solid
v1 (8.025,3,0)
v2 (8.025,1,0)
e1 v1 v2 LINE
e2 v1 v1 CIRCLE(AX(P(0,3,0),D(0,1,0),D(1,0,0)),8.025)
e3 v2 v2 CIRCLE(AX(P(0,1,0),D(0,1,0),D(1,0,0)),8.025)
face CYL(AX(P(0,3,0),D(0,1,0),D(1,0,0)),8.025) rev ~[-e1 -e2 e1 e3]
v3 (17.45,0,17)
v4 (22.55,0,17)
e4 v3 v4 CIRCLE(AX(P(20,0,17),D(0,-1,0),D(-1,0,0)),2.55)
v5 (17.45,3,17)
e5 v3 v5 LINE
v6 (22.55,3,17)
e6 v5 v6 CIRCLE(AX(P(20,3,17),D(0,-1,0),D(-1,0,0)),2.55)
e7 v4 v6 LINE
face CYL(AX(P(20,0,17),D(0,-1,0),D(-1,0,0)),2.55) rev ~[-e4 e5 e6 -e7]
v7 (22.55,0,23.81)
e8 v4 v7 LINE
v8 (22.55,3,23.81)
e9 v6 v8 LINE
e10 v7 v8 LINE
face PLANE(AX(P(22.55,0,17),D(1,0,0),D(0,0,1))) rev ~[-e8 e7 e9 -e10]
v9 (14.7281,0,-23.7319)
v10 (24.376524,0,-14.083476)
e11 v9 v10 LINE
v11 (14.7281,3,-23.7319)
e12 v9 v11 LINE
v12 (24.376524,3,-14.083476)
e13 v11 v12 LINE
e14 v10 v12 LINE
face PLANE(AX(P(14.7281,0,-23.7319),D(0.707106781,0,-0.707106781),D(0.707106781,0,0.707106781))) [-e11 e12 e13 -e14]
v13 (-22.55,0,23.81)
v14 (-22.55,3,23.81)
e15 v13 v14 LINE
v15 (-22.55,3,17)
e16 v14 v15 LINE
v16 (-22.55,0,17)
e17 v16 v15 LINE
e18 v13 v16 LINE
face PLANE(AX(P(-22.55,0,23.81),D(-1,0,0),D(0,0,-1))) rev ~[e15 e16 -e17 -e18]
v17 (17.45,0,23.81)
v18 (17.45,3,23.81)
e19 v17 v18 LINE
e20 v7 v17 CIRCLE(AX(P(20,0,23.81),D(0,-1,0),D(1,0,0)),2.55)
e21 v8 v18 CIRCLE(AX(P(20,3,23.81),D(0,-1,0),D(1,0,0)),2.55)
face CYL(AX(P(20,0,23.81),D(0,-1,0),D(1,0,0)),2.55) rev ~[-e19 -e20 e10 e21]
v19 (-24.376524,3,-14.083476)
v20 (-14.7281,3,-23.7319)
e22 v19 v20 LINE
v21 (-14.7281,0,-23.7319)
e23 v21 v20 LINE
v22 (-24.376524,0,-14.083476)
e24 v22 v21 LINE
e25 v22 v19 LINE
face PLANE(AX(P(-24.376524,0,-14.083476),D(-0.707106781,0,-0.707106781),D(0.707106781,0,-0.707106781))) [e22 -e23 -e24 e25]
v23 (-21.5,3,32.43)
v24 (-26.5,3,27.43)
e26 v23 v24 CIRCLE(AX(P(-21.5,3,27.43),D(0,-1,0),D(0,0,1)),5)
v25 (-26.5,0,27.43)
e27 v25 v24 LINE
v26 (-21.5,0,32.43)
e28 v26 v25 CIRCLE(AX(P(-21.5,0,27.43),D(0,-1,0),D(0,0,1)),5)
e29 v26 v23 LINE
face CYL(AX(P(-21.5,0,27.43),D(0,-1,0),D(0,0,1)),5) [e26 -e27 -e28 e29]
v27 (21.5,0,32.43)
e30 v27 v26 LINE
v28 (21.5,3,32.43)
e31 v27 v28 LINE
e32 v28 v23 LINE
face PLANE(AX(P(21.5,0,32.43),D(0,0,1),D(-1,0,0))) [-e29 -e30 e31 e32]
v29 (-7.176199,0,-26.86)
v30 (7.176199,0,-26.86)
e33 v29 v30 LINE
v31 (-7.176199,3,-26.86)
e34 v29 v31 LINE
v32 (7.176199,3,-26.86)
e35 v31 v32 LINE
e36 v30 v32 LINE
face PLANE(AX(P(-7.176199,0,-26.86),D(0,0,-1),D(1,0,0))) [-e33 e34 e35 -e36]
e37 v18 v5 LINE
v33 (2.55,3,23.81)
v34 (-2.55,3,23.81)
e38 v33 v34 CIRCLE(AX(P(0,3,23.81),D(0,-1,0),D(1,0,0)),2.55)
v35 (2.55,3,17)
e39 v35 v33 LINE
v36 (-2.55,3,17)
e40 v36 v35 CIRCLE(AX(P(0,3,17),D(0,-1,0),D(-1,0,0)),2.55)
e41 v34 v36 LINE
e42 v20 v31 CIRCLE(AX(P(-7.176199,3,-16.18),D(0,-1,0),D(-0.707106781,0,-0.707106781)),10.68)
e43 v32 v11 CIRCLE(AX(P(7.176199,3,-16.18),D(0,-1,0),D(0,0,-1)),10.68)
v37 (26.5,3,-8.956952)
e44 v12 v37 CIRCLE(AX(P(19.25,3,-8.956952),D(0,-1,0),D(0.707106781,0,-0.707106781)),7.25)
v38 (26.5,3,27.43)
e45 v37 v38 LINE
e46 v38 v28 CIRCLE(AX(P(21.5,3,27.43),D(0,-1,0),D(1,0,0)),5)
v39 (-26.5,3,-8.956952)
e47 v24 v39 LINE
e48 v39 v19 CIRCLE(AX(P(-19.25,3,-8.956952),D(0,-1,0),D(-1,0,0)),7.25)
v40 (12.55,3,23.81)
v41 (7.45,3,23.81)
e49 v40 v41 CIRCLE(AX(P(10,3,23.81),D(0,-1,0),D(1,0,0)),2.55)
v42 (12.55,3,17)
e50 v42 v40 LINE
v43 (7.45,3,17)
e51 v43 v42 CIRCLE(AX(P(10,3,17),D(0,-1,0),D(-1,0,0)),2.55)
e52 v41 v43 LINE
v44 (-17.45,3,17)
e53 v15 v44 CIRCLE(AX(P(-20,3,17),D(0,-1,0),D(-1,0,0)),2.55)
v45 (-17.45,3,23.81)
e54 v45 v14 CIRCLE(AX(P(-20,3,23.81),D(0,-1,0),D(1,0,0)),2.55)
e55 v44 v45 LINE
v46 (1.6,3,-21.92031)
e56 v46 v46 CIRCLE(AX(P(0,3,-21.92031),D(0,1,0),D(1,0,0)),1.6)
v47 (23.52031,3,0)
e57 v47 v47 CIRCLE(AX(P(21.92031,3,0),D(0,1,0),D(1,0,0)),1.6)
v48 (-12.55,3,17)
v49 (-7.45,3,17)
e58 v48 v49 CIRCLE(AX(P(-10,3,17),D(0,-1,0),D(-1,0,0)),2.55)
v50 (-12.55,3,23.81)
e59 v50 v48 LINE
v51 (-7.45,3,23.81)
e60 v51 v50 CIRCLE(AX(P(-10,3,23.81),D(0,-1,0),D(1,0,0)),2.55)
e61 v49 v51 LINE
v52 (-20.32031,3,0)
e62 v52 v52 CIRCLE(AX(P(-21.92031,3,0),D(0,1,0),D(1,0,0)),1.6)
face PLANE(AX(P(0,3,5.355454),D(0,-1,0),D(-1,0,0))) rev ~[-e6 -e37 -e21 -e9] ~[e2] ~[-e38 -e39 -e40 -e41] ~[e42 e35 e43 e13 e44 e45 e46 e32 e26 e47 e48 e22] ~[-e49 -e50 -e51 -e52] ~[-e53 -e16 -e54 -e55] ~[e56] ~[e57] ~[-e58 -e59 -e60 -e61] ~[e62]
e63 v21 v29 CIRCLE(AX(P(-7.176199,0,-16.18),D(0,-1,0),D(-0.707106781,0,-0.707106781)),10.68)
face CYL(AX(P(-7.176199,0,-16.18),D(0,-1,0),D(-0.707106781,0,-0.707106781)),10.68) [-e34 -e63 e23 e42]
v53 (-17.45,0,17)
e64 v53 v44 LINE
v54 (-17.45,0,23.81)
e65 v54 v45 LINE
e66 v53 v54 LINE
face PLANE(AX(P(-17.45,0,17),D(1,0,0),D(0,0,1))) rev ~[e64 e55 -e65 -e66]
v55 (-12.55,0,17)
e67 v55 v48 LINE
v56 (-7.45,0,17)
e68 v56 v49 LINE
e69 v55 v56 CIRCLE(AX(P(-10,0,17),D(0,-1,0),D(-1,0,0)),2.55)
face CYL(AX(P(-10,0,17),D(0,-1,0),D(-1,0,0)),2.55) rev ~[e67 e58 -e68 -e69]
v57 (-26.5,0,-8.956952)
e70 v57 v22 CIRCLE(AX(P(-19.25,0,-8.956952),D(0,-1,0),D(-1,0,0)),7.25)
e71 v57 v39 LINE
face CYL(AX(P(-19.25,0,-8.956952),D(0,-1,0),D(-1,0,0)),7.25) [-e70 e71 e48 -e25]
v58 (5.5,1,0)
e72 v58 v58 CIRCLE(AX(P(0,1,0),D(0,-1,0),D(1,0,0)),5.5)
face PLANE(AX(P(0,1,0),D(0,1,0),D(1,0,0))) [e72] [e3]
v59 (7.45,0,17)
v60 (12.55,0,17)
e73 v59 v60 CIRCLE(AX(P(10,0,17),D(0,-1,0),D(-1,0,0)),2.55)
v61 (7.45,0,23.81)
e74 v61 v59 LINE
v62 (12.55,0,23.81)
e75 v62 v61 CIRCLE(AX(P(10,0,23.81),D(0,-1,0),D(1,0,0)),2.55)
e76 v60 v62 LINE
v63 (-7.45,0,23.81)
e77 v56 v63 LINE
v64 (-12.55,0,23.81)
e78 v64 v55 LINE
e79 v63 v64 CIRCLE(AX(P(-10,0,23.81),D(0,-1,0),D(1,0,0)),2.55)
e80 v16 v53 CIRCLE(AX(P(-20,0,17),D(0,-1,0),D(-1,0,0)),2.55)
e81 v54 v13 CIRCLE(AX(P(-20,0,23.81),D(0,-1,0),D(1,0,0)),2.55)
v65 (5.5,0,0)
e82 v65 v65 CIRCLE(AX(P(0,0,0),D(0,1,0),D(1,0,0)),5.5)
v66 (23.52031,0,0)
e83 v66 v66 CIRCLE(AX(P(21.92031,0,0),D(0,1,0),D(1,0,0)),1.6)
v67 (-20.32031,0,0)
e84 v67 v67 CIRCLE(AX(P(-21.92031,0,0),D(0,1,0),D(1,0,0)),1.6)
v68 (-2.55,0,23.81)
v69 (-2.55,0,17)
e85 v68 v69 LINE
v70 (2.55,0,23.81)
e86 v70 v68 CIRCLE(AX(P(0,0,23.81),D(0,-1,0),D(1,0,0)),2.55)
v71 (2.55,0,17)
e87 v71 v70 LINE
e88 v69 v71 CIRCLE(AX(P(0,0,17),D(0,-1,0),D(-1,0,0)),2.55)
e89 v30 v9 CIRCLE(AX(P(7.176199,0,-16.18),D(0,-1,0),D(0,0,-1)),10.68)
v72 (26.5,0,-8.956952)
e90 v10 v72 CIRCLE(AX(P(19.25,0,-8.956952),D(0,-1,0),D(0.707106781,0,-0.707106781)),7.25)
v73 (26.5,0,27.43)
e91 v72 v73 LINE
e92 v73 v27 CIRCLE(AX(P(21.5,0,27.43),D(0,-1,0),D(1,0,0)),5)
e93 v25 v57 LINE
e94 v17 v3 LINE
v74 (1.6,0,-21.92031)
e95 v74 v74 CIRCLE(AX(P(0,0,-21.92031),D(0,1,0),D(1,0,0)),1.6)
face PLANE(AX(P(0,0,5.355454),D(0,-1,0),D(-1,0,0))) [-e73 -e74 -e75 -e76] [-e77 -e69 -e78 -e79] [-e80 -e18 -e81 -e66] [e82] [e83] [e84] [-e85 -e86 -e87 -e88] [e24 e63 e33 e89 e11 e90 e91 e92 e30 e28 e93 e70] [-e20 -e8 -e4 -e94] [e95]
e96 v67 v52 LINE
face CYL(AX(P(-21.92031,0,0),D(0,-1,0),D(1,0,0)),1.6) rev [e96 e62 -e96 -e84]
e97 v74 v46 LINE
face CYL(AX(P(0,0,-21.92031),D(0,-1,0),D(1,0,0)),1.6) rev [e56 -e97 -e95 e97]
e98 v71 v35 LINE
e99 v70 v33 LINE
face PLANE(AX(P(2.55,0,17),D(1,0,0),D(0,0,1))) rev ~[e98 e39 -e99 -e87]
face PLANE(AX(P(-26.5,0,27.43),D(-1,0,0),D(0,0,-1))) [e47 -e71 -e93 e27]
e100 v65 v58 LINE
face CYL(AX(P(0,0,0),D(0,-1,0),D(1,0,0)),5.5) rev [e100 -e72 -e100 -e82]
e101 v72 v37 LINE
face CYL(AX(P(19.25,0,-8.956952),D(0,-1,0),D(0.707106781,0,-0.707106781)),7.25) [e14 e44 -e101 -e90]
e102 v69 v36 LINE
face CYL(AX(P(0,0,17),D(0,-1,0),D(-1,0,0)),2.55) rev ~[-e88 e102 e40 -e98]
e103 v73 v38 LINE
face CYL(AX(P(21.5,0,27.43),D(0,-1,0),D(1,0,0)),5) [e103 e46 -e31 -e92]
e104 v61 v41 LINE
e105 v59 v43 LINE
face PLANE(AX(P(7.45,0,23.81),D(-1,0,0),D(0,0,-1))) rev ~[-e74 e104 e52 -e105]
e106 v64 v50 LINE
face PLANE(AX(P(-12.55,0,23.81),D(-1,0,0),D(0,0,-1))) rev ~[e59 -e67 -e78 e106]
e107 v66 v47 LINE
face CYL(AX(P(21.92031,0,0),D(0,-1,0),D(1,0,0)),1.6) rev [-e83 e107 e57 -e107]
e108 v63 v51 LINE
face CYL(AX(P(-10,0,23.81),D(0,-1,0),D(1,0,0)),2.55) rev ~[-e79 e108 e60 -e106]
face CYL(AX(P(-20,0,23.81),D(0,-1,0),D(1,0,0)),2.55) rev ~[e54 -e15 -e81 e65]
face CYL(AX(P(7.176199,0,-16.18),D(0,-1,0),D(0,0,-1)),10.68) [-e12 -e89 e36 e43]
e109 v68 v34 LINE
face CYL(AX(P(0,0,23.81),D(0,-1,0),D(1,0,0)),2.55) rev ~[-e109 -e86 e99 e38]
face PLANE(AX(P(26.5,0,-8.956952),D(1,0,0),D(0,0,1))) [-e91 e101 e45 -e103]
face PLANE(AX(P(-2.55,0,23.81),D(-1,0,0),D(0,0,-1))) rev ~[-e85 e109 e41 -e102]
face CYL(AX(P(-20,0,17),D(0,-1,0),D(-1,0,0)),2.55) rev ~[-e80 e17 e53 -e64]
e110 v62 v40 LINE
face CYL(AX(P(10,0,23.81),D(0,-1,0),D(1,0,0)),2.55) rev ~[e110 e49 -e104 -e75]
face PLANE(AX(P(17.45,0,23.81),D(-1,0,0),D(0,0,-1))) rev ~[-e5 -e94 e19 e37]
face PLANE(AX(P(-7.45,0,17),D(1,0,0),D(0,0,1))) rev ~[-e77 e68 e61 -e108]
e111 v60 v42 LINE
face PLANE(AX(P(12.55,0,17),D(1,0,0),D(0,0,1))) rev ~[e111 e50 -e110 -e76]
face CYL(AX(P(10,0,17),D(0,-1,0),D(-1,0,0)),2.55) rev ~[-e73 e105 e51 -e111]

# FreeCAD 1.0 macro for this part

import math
import FreeCAD as App
import Part
import Sketcher

V = App.Vector
Q = App.Units.Quantity

doc = App.newDocument("Part")
body = doc.addObject("PartDesign::Body", "Body")

# Sketch on XZ plane
sketch1 = body.newObject("Sketcher::SketchObject", "Sketch")
sketch1.AttachmentSupport = (doc.getObject("XZ_Plane"), [""])
sketch1.MapMode = "FlatFace"
sketch1.addGeometry(Part.LineSegment(V(-21.5, 32.43, 0), V(21.5, 32.43, 0)), False)
sketch1.addGeometry(Part.ArcOfCircle(Part.Circle(V(21.5, 27.43, 0), V(0, 0, 1), 5), math.radians(0), math.radians(90)), False)
sketch1.addGeometry(Part.LineSegment(V(26.5, 27.43, 0), V(26.5, -8.956952, 0)), False)
sketch1.addGeometry(Part.ArcOfCircle(Part.Circle(V(19.25, -8.956952, 0), V(0, 0, 1), 7.25), math.radians(-45), math.radians(0)), False)
sketch1.addGeometry(Part.LineSegment(V(24.376524, -14.083476, 0), V(14.7281, -23.7319, 0)), False)
sketch1.addGeometry(Part.ArcOfCircle(Part.Circle(V(7.176199, -16.18, 0), V(0, 0, 1), 10.68), math.radians(-90), math.radians(-45)), False)
sketch1.addGeometry(Part.LineSegment(V(7.176199, -26.86, 0), V(-7.176199, -26.86, 0)), False)
sketch1.addGeometry(Part.ArcOfCircle(Part.Circle(V(-7.176199, -16.18, 0), V(0, 0, 1), 10.68), math.radians(-135), math.radians(-90)), False)
sketch1.addGeometry(Part.LineSegment(V(-14.7281, -23.7319, 0), V(-24.376524, -14.083476, 0)), False)
sketch1.addGeometry(Part.ArcOfCircle(Part.Circle(V(-19.25, -8.956952, 0), V(0, 0, 1), 7.25), math.radians(180), math.radians(225)), False)
sketch1.addGeometry(Part.LineSegment(V(-26.5, -8.956952, 0), V(-26.5, 27.43, 0)), False)
sketch1.addGeometry(Part.ArcOfCircle(Part.Circle(V(-21.5, 27.43, 0), V(0, 0, 1), 5), math.radians(90), math.radians(180)), False)
sketch1.addGeometry(Part.LineSegment(V(17.45, 23.81, 0), V(17.45, 17, 0)), False)
sketch1.addGeometry(Part.ArcOfCircle(Part.Circle(V(20, 17, 0), V(0, 0, 1), 2.55), math.radians(180), math.radians(360)), False)
sketch1.addGeometry(Part.LineSegment(V(22.55, 17, 0), V(22.55, 23.81, 0)), False)
sketch1.addGeometry(Part.ArcOfCircle(Part.Circle(V(20, 23.81, 0), V(0, 0, 1), 2.55), math.radians(0), math.radians(180)), False)
sketch1.addGeometry(Part.LineSegment(V(7.45, 23.81, 0), V(7.45, 17, 0)), False)
sketch1.addGeometry(Part.ArcOfCircle(Part.Circle(V(10, 17, 0), V(0, 0, 1), 2.55), math.radians(180), math.radians(360)), False)
sketch1.addGeometry(Part.LineSegment(V(12.55, 17, 0), V(12.55, 23.81, 0)), False)
sketch1.addGeometry(Part.ArcOfCircle(Part.Circle(V(10, 23.81, 0), V(0, 0, 1), 2.55), math.radians(0), math.radians(180)), False)
sketch1.addGeometry(Part.LineSegment(V(-2.55, 23.81, 0), V(-2.55, 17, 0)), False)
sketch1.addGeometry(Part.ArcOfCircle(Part.Circle(V(0, 17, 0), V(0, 0, 1), 2.55), math.radians(180), math.radians(360)), False)
sketch1.addGeometry(Part.LineSegment(V(2.55, 17, 0), V(2.55, 23.81, 0)), False)
sketch1.addGeometry(Part.ArcOfCircle(Part.Circle(V(0, 23.81, 0), V(0, 0, 1), 2.55), math.radians(0), math.radians(180)), False)
sketch1.addGeometry(Part.LineSegment(V(-12.55, 23.81, 0), V(-12.55, 17, 0)), False)
sketch1.addGeometry(Part.ArcOfCircle(Part.Circle(V(-10, 17, 0), V(0, 0, 1), 2.55), math.radians(180), math.radians(360)), False)
sketch1.addGeometry(Part.LineSegment(V(-7.45, 17, 0), V(-7.45, 23.81, 0)), False)
sketch1.addGeometry(Part.ArcOfCircle(Part.Circle(V(-10, 23.81, 0), V(0, 0, 1), 2.55), math.radians(0), math.radians(180)), False)
sketch1.addGeometry(Part.LineSegment(V(-22.55, 23.81, 0), V(-22.55, 17, 0)), False)
sketch1.addGeometry(Part.ArcOfCircle(Part.Circle(V(-20, 17, 0), V(0, 0, 1), 2.55), math.radians(180), math.radians(360)), False)
sketch1.addGeometry(Part.LineSegment(V(-17.45, 17, 0), V(-17.45, 23.81, 0)), False)
sketch1.addGeometry(Part.ArcOfCircle(Part.Circle(V(-20, 23.81, 0), V(0, 0, 1), 2.55), math.radians(0), math.radians(180)), False)
sketch1.addGeometry(Part.Circle(V(21.92031, 0, 0), V(0, 0, 1), 1.6), False)
sketch1.addGeometry(Part.Circle(V(0, 0, 0), V(0, 0, 1), 5.5), False)
sketch1.addGeometry(Part.Circle(V(-21.92031, 0, 0), V(0, 0, 1), 1.6), False)
sketch1.addGeometry(Part.Circle(V(0, -21.92031, 0), V(0, 0, 1), 1.6), False)
sketch1.addConstraint(Sketcher.Constraint("Tangent", 0, 2, 1, 2))
sketch1.addConstraint(Sketcher.Constraint("Tangent", 1, 1, 2, 1))
sketch1.addConstraint(Sketcher.Constraint("Tangent", 2, 2, 3, 2))
sketch1.addConstraint(Sketcher.Constraint("Tangent", 3, 1, 4, 1))
sketch1.addConstraint(Sketcher.Constraint("Tangent", 4, 2, 5, 2))
sketch1.addConstraint(Sketcher.Constraint("Tangent", 5, 1, 6, 1))
sketch1.addConstraint(Sketcher.Constraint("Tangent", 6, 2, 7, 2))
sketch1.addConstraint(Sketcher.Constraint("Tangent", 7, 1, 8, 1))
sketch1.addConstraint(Sketcher.Constraint("Tangent", 8, 2, 9, 2))
sketch1.addConstraint(Sketcher.Constraint("Tangent", 9, 1, 10, 1))
sketch1.addConstraint(Sketcher.Constraint("Tangent", 10, 2, 11, 2))
sketch1.addConstraint(Sketcher.Constraint("Tangent", 11, 1, 0, 1))
sketch1.addConstraint(Sketcher.Constraint("Tangent", 12, 2, 13, 1))
sketch1.addConstraint(Sketcher.Constraint("Tangent", 13, 2, 14, 1))
sketch1.addConstraint(Sketcher.Constraint("Tangent", 14, 2, 15, 1))
sketch1.addConstraint(Sketcher.Constraint("Tangent", 15, 2, 12, 1))
sketch1.addConstraint(Sketcher.Constraint("Tangent", 16, 2, 17, 1))
sketch1.addConstraint(Sketcher.Constraint("Tangent", 17, 2, 18, 1))
sketch1.addConstraint(Sketcher.Constraint("Tangent", 18, 2, 19, 1))
sketch1.addConstraint(Sketcher.Constraint("Tangent", 19, 2, 16, 1))
sketch1.addConstraint(Sketcher.Constraint("Tangent", 20, 2, 21, 1))
sketch1.addConstraint(Sketcher.Constraint("Tangent", 21, 2, 22, 1))
sketch1.addConstraint(Sketcher.Constraint("Tangent", 22, 2, 23, 1))
sketch1.addConstraint(Sketcher.Constraint("Tangent", 23, 2, 20, 1))
sketch1.addConstraint(Sketcher.Constraint("Tangent", 24, 2, 25, 1))
sketch1.addConstraint(Sketcher.Constraint("Tangent", 25, 2, 26, 1))
sketch1.addConstraint(Sketcher.Constraint("Tangent", 26, 2, 27, 1))
sketch1.addConstraint(Sketcher.Constraint("Tangent", 27, 2, 24, 1))
sketch1.addConstraint(Sketcher.Constraint("Tangent", 28, 2, 29, 1))
sketch1.addConstraint(Sketcher.Constraint("Tangent", 29, 2, 30, 1))
sketch1.addConstraint(Sketcher.Constraint("Tangent", 30, 2, 31, 1))
sketch1.addConstraint(Sketcher.Constraint("Tangent", 31, 2, 28, 1))
sketch1.addConstraint(Sketcher.Constraint("Horizontal", 0))
sketch1.addConstraint(Sketcher.Constraint("Vertical", 2))
sketch1.addConstraint(Sketcher.Constraint("Horizontal", 6))
sketch1.addConstraint(Sketcher.Constraint("Vertical", 10))
sketch1.addConstraint(Sketcher.Constraint("Vertical", 12))
sketch1.addConstraint(Sketcher.Constraint("Vertical", 14))
sketch1.addConstraint(Sketcher.Constraint("Vertical", 16))
sketch1.addConstraint(Sketcher.Constraint("Vertical", 18))
sketch1.addConstraint(Sketcher.Constraint("Vertical", 20))
sketch1.addConstraint(Sketcher.Constraint("Vertical", 22))
sketch1.addConstraint(Sketcher.Constraint("Vertical", 24))
sketch1.addConstraint(Sketcher.Constraint("Vertical", 26))
sketch1.addConstraint(Sketcher.Constraint("Vertical", 28))
sketch1.addConstraint(Sketcher.Constraint("Vertical", 30))
sketch1.addConstraint(Sketcher.Constraint("Coincident", 33, 3, -1, 1))
sketch1.addConstraint(Sketcher.Constraint("Equal", 5, 7))
sketch1.addConstraint(Sketcher.Constraint("Equal", 3, 9))
sketch1.addConstraint(Sketcher.Constraint("Equal", 1, 11))
sketch1.addConstraint(Sketcher.Constraint("Equal", 15, 17))
sketch1.addConstraint(Sketcher.Constraint("Equal", 19, 21))
sketch1.addConstraint(Sketcher.Constraint("Equal", 23, 25))
sketch1.addConstraint(Sketcher.Constraint("Equal", 27, 29))
sketch1.addConstraint(Sketcher.Constraint("Equal", 32, 34))
sketch1.addConstraint(Sketcher.Constraint("Equal", 34, 35))
sketch1.addConstraint(Sketcher.Constraint("Symmetric", 32, 3, 34, 3, -1, 1))
sketch1.addConstraint(Sketcher.Constraint("Symmetric", 3, 3, 9, 3, -2))
sketch1.addConstraint(Sketcher.Constraint("Symmetric", 17, 3, 25, 3, -2))
sketch1.addConstraint(Sketcher.Constraint("Symmetric", 13, 3, 29, 3, -2))
sketch1.addConstraint(Sketcher.Constraint("PointOnObject", 21, 3, -2))
sketch1.addConstraint(Sketcher.Constraint("PointOnObject", 32, 3, -1))
sketch1.addConstraint(Sketcher.Constraint("PointOnObject", 35, 3, -2))
sketch1.addConstraint(Sketcher.Constraint("Perpendicular", 4, 8))
sketch1.addConstraint(Sketcher.Constraint("Horizontal", 13, 3, 17, 3))
sketch1.addConstraint(Sketcher.Constraint("Horizontal", 15, 3, 19, 3))
sketch1.addConstraint(Sketcher.Constraint("Horizontal", 17, 3, 21, 3))
sketch1.addConstraint(Sketcher.Constraint("Horizontal", 19, 3, 23, 3))
sketch1.addConstraint(Sketcher.Constraint("Horizontal", 23, 3, 27, 3))
sketch1.addConstraint(Sketcher.Constraint("Horizontal", 27, 3, 31, 3))
sketch1.addConstraint(Sketcher.Constraint("Horizontal", 4, 2, 7, 1))
sketch1.addConstraint(Sketcher.Constraint("Diameter", 33, Q("11 mm")))
sketch1.addConstraint(Sketcher.Constraint("Radius", 1, Q("5 mm")))
sketch1.addConstraint(Sketcher.Constraint("Diameter", 32, Q("3.2 mm")))
sketch1.addConstraint(Sketcher.Constraint("DistanceX", 0, 1, 0, 2, Q("43 mm")))
sketch1.addConstraint(Sketcher.Constraint("Radius", 3, Q("7.25 mm")))
sketch1.addConstraint(Sketcher.Constraint("Radius", 5, Q("10.68 mm")))
sketch1.addConstraint(Sketcher.Constraint("Radius", 13, Q("2.55 mm")))
sketch1.addConstraint(Sketcher.Constraint("DistanceX", -1, 1, 13, 3, Q("20 mm")))
sketch1.addConstraint(Sketcher.Constraint("DistanceY", -1, 1, 13, 3, Q("17 mm")))
sketch1.addConstraint(Sketcher.Constraint("DistanceX", -1, 1, 17, 3, Q("10 mm")))
sketch1.addConstraint(Sketcher.Constraint("DistanceY", 12, 2, 12, 1, Q("6.81 mm")))
sketch1.addConstraint(Sketcher.Constraint("DistanceY", -1, 1, 1, 3, Q("27.43 mm")))
sketch1.addConstraint(Sketcher.Constraint("DistanceY", 5, 3, -1, 1, Q("16.18 mm")))
sketch1.addConstraint(Sketcher.Constraint("DistanceX", 6, 2, 6, 1, Q("14.352398 mm")))
sketch1.addConstraint(Sketcher.Constraint("DistanceX", -1, 1, 32, 3, Q("21.92031 mm")))
sketch1.addConstraint(Sketcher.Constraint("DistanceY", 35, 3, -1, 1, Q("21.92031 mm")))
pad1 = body.newObject("PartDesign::Pad", "Pad")
pad1.Profile = sketch1
pad1.Length = 3
pad1.Reversed = True

# Sketch on XZ plane
sketch2 = body.newObject("Sketcher::SketchObject", "Sketch001")
sketch2.AttachmentSupport = (doc.getObject("XZ_Plane"), [""])
sketch2.MapMode = "FlatFace"
sketch2.AttachmentOffset = App.Placement(V(0, 0, -3), App.Rotation())
sketch2.addGeometry(Part.Circle(V(0, 0, 0), V(0, 0, 1), 8.025), False)
sketch2.addConstraint(Sketcher.Constraint("Coincident", 0, 3, -1, 1))
sketch2.addConstraint(Sketcher.Constraint("Diameter", 0, Q("16.05 mm")))
pocket1 = body.newObject("PartDesign::Pocket", "Pocket")
pocket1.Profile = sketch2
pocket1.Length = 2
pocket1.Reversed = True

doc.recompute()
